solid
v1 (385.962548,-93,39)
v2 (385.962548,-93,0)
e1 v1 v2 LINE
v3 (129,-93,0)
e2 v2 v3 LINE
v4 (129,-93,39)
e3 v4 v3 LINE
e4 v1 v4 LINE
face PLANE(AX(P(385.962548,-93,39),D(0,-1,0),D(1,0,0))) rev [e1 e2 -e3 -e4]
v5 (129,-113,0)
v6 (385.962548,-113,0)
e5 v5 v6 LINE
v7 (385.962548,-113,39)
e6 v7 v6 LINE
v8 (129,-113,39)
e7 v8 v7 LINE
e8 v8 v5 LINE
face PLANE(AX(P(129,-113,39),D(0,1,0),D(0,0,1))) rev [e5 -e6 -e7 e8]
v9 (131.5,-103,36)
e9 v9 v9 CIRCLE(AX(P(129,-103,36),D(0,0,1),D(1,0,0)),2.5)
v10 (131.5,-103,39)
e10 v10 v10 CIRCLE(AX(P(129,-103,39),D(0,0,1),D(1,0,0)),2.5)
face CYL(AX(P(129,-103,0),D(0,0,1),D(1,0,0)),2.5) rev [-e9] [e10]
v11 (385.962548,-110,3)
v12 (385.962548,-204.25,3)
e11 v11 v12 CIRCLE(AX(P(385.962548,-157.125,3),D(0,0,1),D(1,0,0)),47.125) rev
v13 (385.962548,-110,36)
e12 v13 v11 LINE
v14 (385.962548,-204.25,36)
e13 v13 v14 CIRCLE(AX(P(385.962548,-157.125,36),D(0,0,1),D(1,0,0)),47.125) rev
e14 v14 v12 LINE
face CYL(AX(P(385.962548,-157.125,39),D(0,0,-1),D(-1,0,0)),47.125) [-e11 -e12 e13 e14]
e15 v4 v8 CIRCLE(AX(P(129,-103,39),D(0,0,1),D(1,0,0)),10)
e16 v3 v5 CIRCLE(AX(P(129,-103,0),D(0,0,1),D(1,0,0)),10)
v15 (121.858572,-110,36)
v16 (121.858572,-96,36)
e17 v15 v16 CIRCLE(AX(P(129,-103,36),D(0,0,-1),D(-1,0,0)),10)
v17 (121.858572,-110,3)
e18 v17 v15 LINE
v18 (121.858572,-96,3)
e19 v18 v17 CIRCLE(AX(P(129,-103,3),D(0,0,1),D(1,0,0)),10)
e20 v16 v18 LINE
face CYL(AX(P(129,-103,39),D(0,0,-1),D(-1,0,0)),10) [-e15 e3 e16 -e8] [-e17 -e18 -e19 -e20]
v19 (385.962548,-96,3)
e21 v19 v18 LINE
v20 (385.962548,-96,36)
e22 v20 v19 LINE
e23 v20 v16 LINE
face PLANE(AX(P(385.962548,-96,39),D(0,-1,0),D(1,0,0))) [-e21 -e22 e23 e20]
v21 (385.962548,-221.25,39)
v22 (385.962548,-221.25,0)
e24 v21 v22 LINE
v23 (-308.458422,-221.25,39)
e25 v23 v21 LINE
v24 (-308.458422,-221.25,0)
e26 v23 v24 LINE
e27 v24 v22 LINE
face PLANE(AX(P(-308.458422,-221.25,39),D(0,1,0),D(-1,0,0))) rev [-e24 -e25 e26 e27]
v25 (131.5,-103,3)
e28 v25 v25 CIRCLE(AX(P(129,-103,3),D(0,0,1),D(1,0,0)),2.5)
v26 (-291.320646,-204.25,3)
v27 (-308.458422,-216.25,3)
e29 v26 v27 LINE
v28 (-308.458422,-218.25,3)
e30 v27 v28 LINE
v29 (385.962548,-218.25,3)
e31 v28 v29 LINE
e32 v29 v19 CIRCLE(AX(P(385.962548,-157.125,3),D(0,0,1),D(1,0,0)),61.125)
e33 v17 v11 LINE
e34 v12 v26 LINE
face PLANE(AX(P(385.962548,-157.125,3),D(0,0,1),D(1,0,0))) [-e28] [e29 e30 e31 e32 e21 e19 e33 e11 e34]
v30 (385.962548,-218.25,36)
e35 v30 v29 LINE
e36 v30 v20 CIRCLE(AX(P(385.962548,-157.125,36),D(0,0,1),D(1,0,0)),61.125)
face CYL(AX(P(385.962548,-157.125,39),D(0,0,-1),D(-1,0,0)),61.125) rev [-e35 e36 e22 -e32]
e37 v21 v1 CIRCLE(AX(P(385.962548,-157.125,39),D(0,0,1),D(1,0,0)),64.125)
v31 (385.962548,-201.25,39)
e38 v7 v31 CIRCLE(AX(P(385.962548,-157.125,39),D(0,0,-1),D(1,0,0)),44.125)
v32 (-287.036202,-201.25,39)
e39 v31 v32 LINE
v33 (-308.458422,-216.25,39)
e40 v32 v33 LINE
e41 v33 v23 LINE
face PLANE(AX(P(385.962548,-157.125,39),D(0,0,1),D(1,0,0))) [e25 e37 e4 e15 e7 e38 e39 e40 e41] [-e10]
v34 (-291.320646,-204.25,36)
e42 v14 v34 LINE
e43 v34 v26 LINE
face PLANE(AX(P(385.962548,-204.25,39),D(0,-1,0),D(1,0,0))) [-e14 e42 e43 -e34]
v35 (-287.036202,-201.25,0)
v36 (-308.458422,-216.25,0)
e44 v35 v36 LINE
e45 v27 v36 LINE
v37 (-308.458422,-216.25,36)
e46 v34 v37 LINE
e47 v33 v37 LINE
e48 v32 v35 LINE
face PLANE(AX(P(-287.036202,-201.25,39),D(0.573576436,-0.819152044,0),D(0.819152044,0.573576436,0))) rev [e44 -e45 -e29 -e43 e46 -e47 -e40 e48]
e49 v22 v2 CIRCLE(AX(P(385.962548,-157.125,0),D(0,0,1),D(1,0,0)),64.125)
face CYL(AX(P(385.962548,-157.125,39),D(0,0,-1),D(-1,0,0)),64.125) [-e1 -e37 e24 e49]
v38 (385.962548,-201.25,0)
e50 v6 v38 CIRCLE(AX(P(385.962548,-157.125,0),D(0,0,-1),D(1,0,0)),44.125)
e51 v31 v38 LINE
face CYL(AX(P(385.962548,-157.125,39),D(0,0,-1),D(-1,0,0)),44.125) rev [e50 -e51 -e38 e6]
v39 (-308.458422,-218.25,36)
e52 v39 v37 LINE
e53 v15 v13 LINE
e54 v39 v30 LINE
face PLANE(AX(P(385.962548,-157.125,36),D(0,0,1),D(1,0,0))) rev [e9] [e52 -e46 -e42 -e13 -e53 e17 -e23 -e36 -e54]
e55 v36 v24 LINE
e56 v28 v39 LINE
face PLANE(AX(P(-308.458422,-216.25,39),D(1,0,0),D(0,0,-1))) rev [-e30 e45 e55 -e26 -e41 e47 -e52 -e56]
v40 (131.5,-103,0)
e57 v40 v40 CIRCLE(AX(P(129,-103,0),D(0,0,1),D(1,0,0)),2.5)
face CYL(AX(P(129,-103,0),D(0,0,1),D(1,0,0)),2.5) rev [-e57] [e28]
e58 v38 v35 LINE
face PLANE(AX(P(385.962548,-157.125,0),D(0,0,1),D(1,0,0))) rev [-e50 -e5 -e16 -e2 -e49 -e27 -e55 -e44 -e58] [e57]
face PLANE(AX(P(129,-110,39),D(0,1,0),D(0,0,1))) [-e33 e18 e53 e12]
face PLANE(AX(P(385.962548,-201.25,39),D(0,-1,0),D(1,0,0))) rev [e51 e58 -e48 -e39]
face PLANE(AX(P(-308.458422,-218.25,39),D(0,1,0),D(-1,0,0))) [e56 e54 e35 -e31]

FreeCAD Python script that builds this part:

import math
import FreeCAD as App
import Part
import Sketcher
Q = App.Units.Quantity


def faces_at(feature, points):
    """Names of the faces that lie closest to the given points."""
    faces = feature.Shape.Faces
    near = lambda p: min(range(len(faces)), key=lambda i: faces[i].distToShape(Part.Vertex(*p))[0])
    return sorted({f"Face{near(p) + 1}" for p in points})

doc = App.newDocument("Part")
params = doc.addObject("Spreadsheet::Sheet", "Params")
for row, (alias, value) in enumerate([
    ("sketch1_radius", "10 mm"),
    ("sketch1_height", "5 mm"),
    ("pad1_length", "39 mm"),
    ("thickness_wall", "3 mm"),
    ("sketch2_width", "14 mm"),
    ("sketch2_height", "33 mm"),
    ("sketch3_diameter", "5 mm"),
], start=1):
    params.set(f"A{row}", alias)
    params.set(f"B{row}", "=" + value)
    params.setAlias(f"B{row}", alias)

body = doc.addObject("PartDesign::Body", "Body")

# Sketch on XY plane
sketch1 = body.newObject("Sketcher::SketchObject", "Sketch")
sketch1.AttachmentSupport = (doc.getObject("XY_Plane"), [""])
sketch1.MapMode = "FlatFace"
sketch1.addGeometry([
    Part.LineSegment(App.Vector(386, -201, 0), App.Vector(-287, -201, 0)),  # 0
    Part.LineSegment(App.Vector(-287, -201, 0), App.Vector(-308, -216, 0)),  # 1
    Part.LineSegment(App.Vector(-308, -216, 0), App.Vector(-308, -221, 0)),  # 2
    Part.LineSegment(App.Vector(-308, -221, 0), App.Vector(386, -221, 0)),  # 3
    Part.ArcOfCircle(Part.Circle(App.Vector(386, -157, 0), App.Vector(0, 0, 1), 64), math.radians(-90), math.radians(90)),  # 4
    Part.LineSegment(App.Vector(386, -93, 0), App.Vector(129, -93, 0)),  # 5
    Part.ArcOfCircle(Part.Circle(App.Vector(129, -103, 0), App.Vector(0, 0, 1), 10), math.radians(90), math.radians(270)),  # 6
    Part.LineSegment(App.Vector(129, -113, 0), App.Vector(386, -113, 0)),  # 7
    Part.ArcOfCircle(Part.Circle(App.Vector(386, -157, 0), App.Vector(0, 0, 1), 44), math.radians(-90), math.radians(90)),  # 8
], False)
sketch1.addConstraint([
    Sketcher.Constraint("Coincident", 0, 2, 1, 1),
    Sketcher.Constraint("Coincident", 1, 2, 2, 1),
    Sketcher.Constraint("Coincident", 2, 2, 3, 1),
    Sketcher.Constraint("Tangent", 3, 2, 4, 1),
    Sketcher.Constraint("Tangent", 4, 2, 5, 1),
    Sketcher.Constraint("Tangent", 5, 2, 6, 1),
    Sketcher.Constraint("Tangent", 6, 2, 7, 1),
    Sketcher.Constraint("Tangent", 7, 2, 8, 2),
    Sketcher.Constraint("Tangent", 8, 1, 0, 1),
    Sketcher.Constraint("Horizontal", 0),
    Sketcher.Constraint("Vertical", 2),
    Sketcher.Constraint("Horizontal", 3),
    Sketcher.Constraint("Horizontal", 5),
    Sketcher.Constraint("Horizontal", 7),
    Sketcher.Constraint("Coincident", 8, 3, 4, 3),
    Sketcher.Constraint("Radius", 6, 10.0),
    Sketcher.Constraint("DistanceY", 2, 2, 2, 1, 5.0),
    Sketcher.Constraint("Angle", 1, Q("-145 deg")),
    Sketcher.Constraint("DistanceX", -1, 1, 6, 3, 129.0),
    Sketcher.Constraint("DistanceY", 6, 3, -1, 1, 103.0),
    Sketcher.Constraint("Radius", 4, 64.125),
    Sketcher.Constraint("DistanceX", 0, 2, 0, 1, 672.99875),
    Sketcher.Constraint("DistanceX", 5, 2, 5, 1, 256.962548),
])
sketch1.setExpression("Constraints[15]", "Params.sketch1_radius")
sketch1.setExpression("Constraints[16]", "Params.sketch1_height")
pad1 = body.newObject("PartDesign::Pad", "Pad")
pad1.Profile = sketch1
pad1.setExpression("Length", "Params.pad1_length")
doc.recompute()

thickness = body.newObject("PartDesign::Thickness", "Thickness")
thickness.Base = (pad1, faces_at(pad1, [(-297.747, -208.75, 19.5)]))
thickness.setExpression("Value", "Params.thickness_wall")
thickness.Reversed = True
thickness.Join = "Intersection"

# Sketch on YZ plane
sketch2 = body.newObject("Sketcher::SketchObject", "Sketch001")
sketch2.AttachmentSupport = (doc.getObject("YZ_Plane"), [""])
sketch2.MapMode = "FlatFace"
sketch2.AttachmentOffset = App.Placement(App.Vector(0, 0, 385.962548), App.Rotation())
sketch2.addGeometry([
    Part.LineSegment(App.Vector(-96, 3, 0), App.Vector(-110, 3, 0)),  # 0
    Part.LineSegment(App.Vector(-110, 3, 0), App.Vector(-110, 36, 0)),  # 1
    Part.LineSegment(App.Vector(-110, 36, 0), App.Vector(-96, 36, 0)),  # 2
    Part.LineSegment(App.Vector(-96, 36, 0), App.Vector(-96, 3, 0)),  # 3
    Part.LineSegment(App.Vector(-204, 3, 0), App.Vector(-218, 3, 0)),  # 4
    Part.LineSegment(App.Vector(-218, 3, 0), App.Vector(-218, 36, 0)),  # 5
    Part.LineSegment(App.Vector(-218, 36, 0), App.Vector(-204, 36, 0)),  # 6
    Part.LineSegment(App.Vector(-204, 36, 0), App.Vector(-204, 3, 0)),  # 7
], False)
sketch2.addConstraint([
    Sketcher.Constraint("Coincident", 0, 2, 1, 1),
    Sketcher.Constraint("Coincident", 1, 2, 2, 1),
    Sketcher.Constraint("Coincident", 2, 2, 3, 1),
    Sketcher.Constraint("Coincident", 3, 2, 0, 1),
    Sketcher.Constraint("Coincident", 4, 2, 5, 1),
    Sketcher.Constraint("Coincident", 5, 2, 6, 1),
    Sketcher.Constraint("Coincident", 6, 2, 7, 1),
    Sketcher.Constraint("Coincident", 7, 2, 4, 1),
    Sketcher.Constraint("Horizontal", 0),
    Sketcher.Constraint("Vertical", 1),
    Sketcher.Constraint("Horizontal", 2),
    Sketcher.Constraint("Vertical", 3),
    Sketcher.Constraint("Horizontal", 4),
    Sketcher.Constraint("Vertical", 5),
    Sketcher.Constraint("Horizontal", 6),
    Sketcher.Constraint("Vertical", 7),
    Sketcher.Constraint("Horizontal", 3, 2, 4, 2),
    Sketcher.Constraint("Horizontal", 2, 2, 5, 2),
    Sketcher.Constraint("Equal", 2, 4),
    Sketcher.Constraint("DistanceX", 0, 2, 0, 1, 14.0),
    Sketcher.Constraint("DistanceY", 1, 1, 1, 2, 33.0),
    Sketcher.Constraint("DistanceX", 0, 2, -1, 1, 110.0),
    Sketcher.Constraint("DistanceY", -1, 1, 0, 2, 3.0),
    Sketcher.Constraint("DistanceX", 4, 2, -1, 1, 218.25),
])
sketch2.setExpression("Constraints[19]", "Params.sketch2_width")
sketch2.setExpression("Constraints[20]", "Params.sketch2_height")
pocket1 = body.newObject("PartDesign::Pocket", "Pocket")
pocket1.Profile = sketch2
pocket1.Type = "ThroughAll"

# Sketch on XY plane
sketch3 = body.newObject("Sketcher::SketchObject", "Sketch002")
sketch3.AttachmentSupport = (doc.getObject("XY_Plane"), [""])
sketch3.MapMode = "FlatFace"
sketch3.AttachmentOffset = App.Placement(App.Vector(0, 0, 39), App.Rotation())
sketch3.addGeometry(Part.Circle(App.Vector(129, -103, 0), App.Vector(0, 0, 1), 2.5), False)
sketch3.addConstraint([
    Sketcher.Constraint("Diameter", 0, 5.0),
    Sketcher.Constraint("DistanceX", -1, 1, 0, 3, 129.0),
    Sketcher.Constraint("DistanceY", 0, 3, -1, 1, 103.0),
])
sketch3.setExpression("Constraints[0]", "Params.sketch3_diameter")
pocket2 = body.newObject("PartDesign::Pocket", "Pocket001")
pocket2.Profile = sketch3
pocket2.Type = "ThroughAll"

doc.recompute()
